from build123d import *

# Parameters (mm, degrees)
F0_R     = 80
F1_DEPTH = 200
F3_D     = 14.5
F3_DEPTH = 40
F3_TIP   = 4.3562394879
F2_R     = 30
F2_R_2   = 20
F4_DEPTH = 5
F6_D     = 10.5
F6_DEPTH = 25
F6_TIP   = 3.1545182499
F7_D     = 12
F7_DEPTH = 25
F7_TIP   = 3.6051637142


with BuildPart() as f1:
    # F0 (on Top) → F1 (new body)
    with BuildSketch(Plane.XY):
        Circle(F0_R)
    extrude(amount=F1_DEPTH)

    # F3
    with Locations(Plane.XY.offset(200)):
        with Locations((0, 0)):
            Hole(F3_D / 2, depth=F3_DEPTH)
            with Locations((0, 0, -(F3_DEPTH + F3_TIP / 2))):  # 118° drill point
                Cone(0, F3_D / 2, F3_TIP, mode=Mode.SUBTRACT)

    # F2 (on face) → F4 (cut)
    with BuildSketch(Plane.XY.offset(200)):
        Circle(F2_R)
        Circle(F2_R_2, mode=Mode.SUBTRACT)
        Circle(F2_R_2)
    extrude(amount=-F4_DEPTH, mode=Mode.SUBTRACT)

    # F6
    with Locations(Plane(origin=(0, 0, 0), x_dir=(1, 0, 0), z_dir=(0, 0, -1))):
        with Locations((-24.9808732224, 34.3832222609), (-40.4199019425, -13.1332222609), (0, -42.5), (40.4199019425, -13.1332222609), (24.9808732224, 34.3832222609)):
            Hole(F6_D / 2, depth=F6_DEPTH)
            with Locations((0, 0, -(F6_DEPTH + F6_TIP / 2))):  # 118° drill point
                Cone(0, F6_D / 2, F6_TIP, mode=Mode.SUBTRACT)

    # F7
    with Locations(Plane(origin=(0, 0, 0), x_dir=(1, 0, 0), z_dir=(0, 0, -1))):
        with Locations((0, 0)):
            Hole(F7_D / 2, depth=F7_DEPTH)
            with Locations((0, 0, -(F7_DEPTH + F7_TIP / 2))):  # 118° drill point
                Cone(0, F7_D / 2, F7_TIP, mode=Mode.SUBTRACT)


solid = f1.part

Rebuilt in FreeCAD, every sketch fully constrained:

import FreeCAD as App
import Part
import Sketcher
from FreeCAD import Vector
Q = App.Units.Quantity

doc = App.newDocument("Part")
body = doc.addObject("PartDesign::Body", "Body")

# Sketch on XY plane
sketch1 = body.newObject("Sketcher::SketchObject", "Sketch")
sketch1.AttachmentSupport = (doc.getObject("XY_Plane"), [""])
sketch1.MapMode = "FlatFace"
sketch1.addGeometry(Part.Circle(Vector(0, 0, 0), Vector(0, 0, 1), 80), False)
sketch1.addConstraint(Sketcher.Constraint("Coincident", 0, 3, -1, 1))
sketch1.addConstraint(Sketcher.Constraint("Diameter", 0, Q("160 mm")))
pad1 = body.newObject("PartDesign::Pad", "Pad")
pad1.Profile = sketch1
pad1.Length = 200

# Sketch on XY plane
sketch2 = body.newObject("Sketcher::SketchObject", "Sketch001")
sketch2.AttachmentSupport = (doc.getObject("XY_Plane"), [""])
sketch2.MapMode = "FlatFace"
sketch2.AttachmentOffset = App.Placement(Vector(0, 0, 200), App.Rotation())
sketch2.addGeometry(Part.Circle(Vector(0, 0, 0), Vector(0, 0, 1), 7), False)
sketch2.addConstraint(Sketcher.Constraint("Coincident", 0, 3, -1, 1))
sketch2.addConstraint(Sketcher.Constraint("Diameter", 0, Q("14.5 mm")))
doc.recompute()
hole = body.newObject("PartDesign::Hole", "Hole")
hole.Profile = sketch2
hole.ThreadType = "None"
hole.Diameter = 14.5
hole.DepthType = "Dimension"
hole.Depth = 40
hole.DrillPoint = "Angled"
hole.DrillPointAngle = 118

# Sketch on XY plane
sketch3 = body.newObject("Sketcher::SketchObject", "Sketch002")
sketch3.AttachmentSupport = (doc.getObject("XY_Plane"), [""])
sketch3.MapMode = "FlatFace"
sketch3.AttachmentOffset = App.Placement(Vector(0, 0, 200), App.Rotation())
sketch3.addGeometry(Part.Circle(Vector(0, 0, 0), Vector(0, 0, 1), 30), False)
sketch3.addConstraint(Sketcher.Constraint("Coincident", 0, 3, -1, 1))
sketch3.addConstraint(Sketcher.Constraint("Diameter", 0, Q("60 mm")))
pocket1 = body.newObject("PartDesign::Pocket", "Pocket")
pocket1.Profile = sketch3
pocket1.Length = 5

# Sketch on XY plane
sketch4 = body.newObject("Sketcher::SketchObject", "Sketch003")
sketch4.AttachmentSupport = (doc.getObject("XY_Plane"), [""])
sketch4.MapMode = "FlatFace"
sketch4.addGeometry(Part.Circle(Vector(-25, -34, 0), Vector(0, 0, 1), 5), False)
sketch4.addGeometry(Part.Circle(Vector(-40, 13, 0), Vector(0, 0, 1), 5), False)
sketch4.addGeometry(Part.Circle(Vector(0, 42, 0), Vector(0, 0, 1), 5), False)
sketch4.addGeometry(Part.Circle(Vector(40, 13, 0), Vector(0, 0, 1), 5), False)
sketch4.addGeometry(Part.Circle(Vector(25, -34, 0), Vector(0, 0, 1), 5), False)
sketch4.addConstraint(Sketcher.Constraint("Equal", 0, 1))
sketch4.addConstraint(Sketcher.Constraint("Equal", 1, 2))
sketch4.addConstraint(Sketcher.Constraint("Equal", 2, 3))
sketch4.addConstraint(Sketcher.Constraint("Equal", 3, 4))
sketch4.addConstraint(Sketcher.Constraint("Symmetric", 1, 3, 3, 3, -2))
sketch4.addConstraint(Sketcher.Constraint("Symmetric", 0, 3, 4, 3, -2))
sketch4.addConstraint(Sketcher.Constraint("PointOnObject", 2, 3, -2))
sketch4.addConstraint(Sketcher.Constraint("Diameter", 0, Q("10.5 mm")))
sketch4.addConstraint(Sketcher.Constraint("DistanceY", -1, 1, 2, 3, Q("42.5 mm")))
sketch4.addConstraint(Sketcher.Constraint("DistanceX", 1, 3, -1, 1, Q("40.419902 mm")))
sketch4.addConstraint(Sketcher.Constraint("DistanceX", 1, 3, 0, 3, Q("15.439029 mm")))
sketch4.addConstraint(Sketcher.Constraint("DistanceY", 0, 3, -1, 1, Q("34.383222 mm")))
sketch4.addConstraint(Sketcher.Constraint("DistanceY", -1, 1, 1, 3, Q("13.133222 mm")))
doc.recompute()
hole2 = body.newObject("PartDesign::Hole", "Hole001")
hole2.Profile = sketch4
hole2.ThreadType = "None"
hole2.Diameter = 10.5
hole2.DepthType = "Dimension"
hole2.Depth = 25
hole2.DrillPoint = "Angled"
hole2.DrillPointAngle = 118
hole2.Reversed = True

# Sketch on XY plane
sketch5 = body.newObject("Sketcher::SketchObject", "Sketch004")
sketch5.AttachmentSupport = (doc.getObject("XY_Plane"), [""])
sketch5.MapMode = "FlatFace"
sketch5.addGeometry(Part.Circle(Vector(0, 0, 0), Vector(0, 0, 1), 6), False)
sketch5.addConstraint(Sketcher.Constraint("Coincident", 0, 3, -1, 1))
sketch5.addConstraint(Sketcher.Constraint("Diameter", 0, Q("12 mm")))
doc.recompute()
hole3 = body.newObject("PartDesign::Hole", "Hole002")
hole3.Profile = sketch5
hole3.ThreadType = "None"
hole3.Diameter = 12
hole3.DepthType = "Dimension"
hole3.Depth = 25
hole3.DrillPoint = "Angled"
hole3.DrillPointAngle = 118
hole3.Reversed = True

doc.recompute()
